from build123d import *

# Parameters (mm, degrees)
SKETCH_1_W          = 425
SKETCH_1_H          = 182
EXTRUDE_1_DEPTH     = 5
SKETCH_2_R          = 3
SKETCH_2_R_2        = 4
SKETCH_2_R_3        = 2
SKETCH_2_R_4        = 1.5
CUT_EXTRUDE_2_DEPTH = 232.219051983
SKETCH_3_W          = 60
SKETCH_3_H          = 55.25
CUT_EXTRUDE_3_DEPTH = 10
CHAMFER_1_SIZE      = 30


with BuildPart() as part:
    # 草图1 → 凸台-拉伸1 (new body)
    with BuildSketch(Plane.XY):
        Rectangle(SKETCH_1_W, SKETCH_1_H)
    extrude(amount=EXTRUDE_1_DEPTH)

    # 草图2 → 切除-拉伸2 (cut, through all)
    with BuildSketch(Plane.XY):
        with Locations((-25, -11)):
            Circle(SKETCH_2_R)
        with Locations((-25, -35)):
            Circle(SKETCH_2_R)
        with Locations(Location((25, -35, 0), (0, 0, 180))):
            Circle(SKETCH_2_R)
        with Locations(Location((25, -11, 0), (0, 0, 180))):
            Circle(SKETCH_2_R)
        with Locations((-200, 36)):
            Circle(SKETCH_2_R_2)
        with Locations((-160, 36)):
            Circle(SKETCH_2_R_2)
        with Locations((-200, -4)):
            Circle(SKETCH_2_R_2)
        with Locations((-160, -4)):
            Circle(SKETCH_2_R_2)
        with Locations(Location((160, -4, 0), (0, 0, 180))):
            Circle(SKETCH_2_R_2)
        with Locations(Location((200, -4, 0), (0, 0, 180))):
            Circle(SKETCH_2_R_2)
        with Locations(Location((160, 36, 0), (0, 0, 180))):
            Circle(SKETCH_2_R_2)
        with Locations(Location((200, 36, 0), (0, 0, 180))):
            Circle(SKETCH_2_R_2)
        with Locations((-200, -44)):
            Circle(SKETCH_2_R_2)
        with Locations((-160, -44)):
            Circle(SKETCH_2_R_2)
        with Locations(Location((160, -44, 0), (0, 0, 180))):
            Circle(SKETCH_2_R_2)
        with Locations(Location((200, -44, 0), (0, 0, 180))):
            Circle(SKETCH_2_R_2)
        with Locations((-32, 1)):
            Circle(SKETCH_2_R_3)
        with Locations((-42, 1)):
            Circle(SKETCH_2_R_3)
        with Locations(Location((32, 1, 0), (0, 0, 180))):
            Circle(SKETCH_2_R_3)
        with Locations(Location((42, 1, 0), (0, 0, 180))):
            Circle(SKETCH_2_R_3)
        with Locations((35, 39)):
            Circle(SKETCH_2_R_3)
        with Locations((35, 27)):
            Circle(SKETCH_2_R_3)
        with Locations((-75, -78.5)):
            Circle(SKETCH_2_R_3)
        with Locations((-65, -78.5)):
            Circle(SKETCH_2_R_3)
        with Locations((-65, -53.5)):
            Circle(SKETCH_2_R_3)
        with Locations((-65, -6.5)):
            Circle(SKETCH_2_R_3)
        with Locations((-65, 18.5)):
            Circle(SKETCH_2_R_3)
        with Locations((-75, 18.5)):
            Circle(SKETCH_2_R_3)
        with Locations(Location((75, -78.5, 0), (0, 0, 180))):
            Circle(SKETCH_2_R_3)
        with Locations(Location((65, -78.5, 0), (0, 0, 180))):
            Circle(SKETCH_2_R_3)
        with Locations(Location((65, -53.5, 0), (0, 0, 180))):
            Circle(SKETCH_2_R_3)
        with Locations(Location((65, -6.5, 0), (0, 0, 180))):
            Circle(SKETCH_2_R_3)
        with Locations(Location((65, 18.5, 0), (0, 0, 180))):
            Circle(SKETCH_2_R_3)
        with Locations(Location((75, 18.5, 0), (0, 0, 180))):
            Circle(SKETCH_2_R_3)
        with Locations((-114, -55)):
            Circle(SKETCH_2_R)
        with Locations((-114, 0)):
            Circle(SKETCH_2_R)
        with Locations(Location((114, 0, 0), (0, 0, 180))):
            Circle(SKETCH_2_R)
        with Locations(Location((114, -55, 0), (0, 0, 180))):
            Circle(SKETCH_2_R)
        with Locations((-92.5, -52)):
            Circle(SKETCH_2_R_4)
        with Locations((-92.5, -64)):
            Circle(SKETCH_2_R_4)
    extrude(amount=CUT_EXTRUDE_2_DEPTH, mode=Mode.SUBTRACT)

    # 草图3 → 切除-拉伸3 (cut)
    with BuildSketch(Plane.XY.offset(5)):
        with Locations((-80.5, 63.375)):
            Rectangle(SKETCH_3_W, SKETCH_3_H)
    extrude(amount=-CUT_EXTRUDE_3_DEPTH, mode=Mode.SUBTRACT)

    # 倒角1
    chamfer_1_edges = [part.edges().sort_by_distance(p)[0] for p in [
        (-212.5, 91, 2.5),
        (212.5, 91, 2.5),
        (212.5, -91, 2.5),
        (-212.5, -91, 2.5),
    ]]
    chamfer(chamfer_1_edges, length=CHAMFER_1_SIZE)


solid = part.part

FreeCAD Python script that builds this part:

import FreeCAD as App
import Part
import Sketcher

V = App.Vector


def edges_at(feature, points):
    """Names of the edges that pass closest to the given points."""
    edges = feature.Shape.Edges
    near = lambda p: min(range(len(edges)), key=lambda i: edges[i].distToShape(Part.Vertex(*p))[0])
    return sorted({f"Edge{near(p) + 1}" for p in points})


def add_polygon(sketch, points):
    """Adds a closed chain of lines whose ends are joined by coincident constraints."""
    first, n = sketch.GeometryCount, len(points)
    for a, b in zip(points, points[1:] + points[:1]):
        sketch.addGeometry(Part.LineSegment(App.Vector(*a, 0), App.Vector(*b, 0)), False)
    for i in range(n):
        sketch.addConstraint(Sketcher.Constraint("Coincident", first + i, 2, first + (i + 1) % n, 1))

doc = App.newDocument("Part")
params = doc.addObject("Spreadsheet::Sheet", "Params")
for row, (alias, value) in enumerate([
    ("sketch1_width", "425 mm"),
    ("sketch1_height", "182 mm"),
    ("pad1_length", "5 mm"),
    ("sketch2_diameter", "6 mm"),
    ("sketch2_diameter2", "8 mm"),
    ("sketch2_diameter3", "4 mm"),
    ("sketch2_diameter4", "3 mm"),
    ("sketch3_width", "60 mm"),
    ("sketch3_height", "55.25 mm"),
    ("pocket2_length", "10 mm"),
    ("chamfer_size", "30 mm"),
], start=1):
    params.set(f"A{row}", alias)
    params.set(f"B{row}", "=" + value)
    params.setAlias(f"B{row}", alias)

body = doc.addObject("PartDesign::Body", "Body")

# Sketch on XY plane
sketch1 = body.newObject("Sketcher::SketchObject", "Sketch")
sketch1.AttachmentSupport = (doc.getObject("XY_Plane"), [""])
sketch1.MapMode = "FlatFace"
add_polygon(sketch1, [(-212.5, 91), (-212.5, -91), (212.5, -91), (212.5, 91)])  # lines 0-3
sketch1.addConstraint([
    Sketcher.Constraint("Vertical", 0),
    Sketcher.Constraint("Horizontal", 1),
    Sketcher.Constraint("Vertical", 2),
    Sketcher.Constraint("Horizontal", 3),
    Sketcher.Constraint("Symmetric", 0, 2, 2, 2, -1, 1),
    Sketcher.Constraint("DistanceX", 1, 1, 1, 2, 425.0),
    Sketcher.Constraint("DistanceY", 0, 2, 0, 1, 182.0),
])
sketch1.setExpression("Constraints[9]", "Params.sketch1_width")
sketch1.setExpression("Constraints[10]", "Params.sketch1_height")
pad1 = body.newObject("PartDesign::Pad", "Pad")
pad1.Profile = sketch1
pad1.setExpression("Length", "Params.pad1_length")

# Sketch on XY plane
sketch2 = body.newObject("Sketcher::SketchObject", "Sketch001")
sketch2.AttachmentSupport = (doc.getObject("XY_Plane"), [""])
sketch2.MapMode = "FlatFace"
sketch2.addGeometry([
    Part.Circle(V(-25, -11, 0), V(0, 0, 1), 3),  # 0
    Part.Circle(V(-25, -35, 0), V(0, 0, 1), 3),  # 1
    Part.Circle(V(25, -35, 0), V(0, 0, 1), 3),  # 2
    Part.Circle(V(25, -11, 0), V(0, 0, 1), 3),  # 3
    Part.Circle(V(-200, 36, 0), V(0, 0, 1), 4),  # 4
    Part.Circle(V(-160, 36, 0), V(0, 0, 1), 4),  # 5
    Part.Circle(V(-200, -4, 0), V(0, 0, 1), 4),  # 6
    Part.Circle(V(-160, -4, 0), V(0, 0, 1), 4),  # 7
    Part.Circle(V(160, -4, 0), V(0, 0, 1), 4),  # 8
    Part.Circle(V(200, -4, 0), V(0, 0, 1), 4),  # 9
    Part.Circle(V(160, 36, 0), V(0, 0, 1), 4),  # 10
    Part.Circle(V(200, 36, 0), V(0, 0, 1), 4),  # 11
    Part.Circle(V(-200, -44, 0), V(0, 0, 1), 4),  # 12
    Part.Circle(V(-160, -44, 0), V(0, 0, 1), 4),  # 13
    Part.Circle(V(160, -44, 0), V(0, 0, 1), 4),  # 14
    Part.Circle(V(200, -44, 0), V(0, 0, 1), 4),  # 15
    Part.Circle(V(-32, 1, 0), V(0, 0, 1), 2),  # 16
    Part.Circle(V(-42, 1, 0), V(0, 0, 1), 2),  # 17
    Part.Circle(V(32, 1, 0), V(0, 0, 1), 2),  # 18
    Part.Circle(V(42, 1, 0), V(0, 0, 1), 2),  # 19
    Part.Circle(V(35, 39, 0), V(0, 0, 1), 2),  # 20
    Part.Circle(V(35, 27, 0), V(0, 0, 1), 2),  # 21
    Part.Circle(V(-75, -78.5, 0), V(0, 0, 1), 2),  # 22
    Part.Circle(V(-65, -78.5, 0), V(0, 0, 1), 2),  # 23
    Part.Circle(V(-65, -53.5, 0), V(0, 0, 1), 2),  # 24
    Part.Circle(V(-65, -6.5, 0), V(0, 0, 1), 2),  # 25
    Part.Circle(V(-65, 18.5, 0), V(0, 0, 1), 2),  # 26
    Part.Circle(V(-75, 18.5, 0), V(0, 0, 1), 2),  # 27
    Part.Circle(V(75, -78.5, 0), V(0, 0, 1), 2),  # 28
    Part.Circle(V(65, -78.5, 0), V(0, 0, 1), 2),  # 29
    Part.Circle(V(65, -53.5, 0), V(0, 0, 1), 2),  # 30
    Part.Circle(V(65, -6.5, 0), V(0, 0, 1), 2),  # 31
    Part.Circle(V(65, 18.5, 0), V(0, 0, 1), 2),  # 32
    Part.Circle(V(75, 18.5, 0), V(0, 0, 1), 2),  # 33
    Part.Circle(V(-114, -55, 0), V(0, 0, 1), 3),  # 34
    Part.Circle(V(-114, 0, 0), V(0, 0, 1), 3),  # 35
    Part.Circle(V(114, 0, 0), V(0, 0, 1), 3),  # 36
    Part.Circle(V(114, -55, 0), V(0, 0, 1), 3),  # 37
    Part.Circle(V(-92.5, -52, 0), V(0, 0, 1), 1.5),  # 38
    Part.Circle(V(-92.5, -64, 0), V(0, 0, 1), 1.5),  # 39
], False)
sketch2.addConstraint([
    Sketcher.Constraint("Equal", 0, 1),
    Sketcher.Constraint("Equal", 1, 2),
    Sketcher.Constraint("Equal", 2, 3),
    Sketcher.Constraint("Equal", 4, 5),
    Sketcher.Constraint("Equal", 5, 6),
    Sketcher.Constraint("Equal", 6, 7),
    Sketcher.Constraint("Equal", 7, 8),
    Sketcher.Constraint("Equal", 8, 9),
    Sketcher.Constraint("Equal", 9, 10),
    Sketcher.Constraint("Equal", 10, 11),
    Sketcher.Constraint("Equal", 11, 12),
    Sketcher.Constraint("Equal", 12, 13),
    Sketcher.Constraint("Equal", 13, 14),
    Sketcher.Constraint("Equal", 14, 15),
    Sketcher.Constraint("Equal", 16, 17),
    Sketcher.Constraint("Equal", 17, 18),
    Sketcher.Constraint("Equal", 18, 19),
    Sketcher.Constraint("Equal", 19, 20),
    Sketcher.Constraint("Equal", 20, 21),
    Sketcher.Constraint("Equal", 21, 22),
    Sketcher.Constraint("Equal", 22, 23),
    Sketcher.Constraint("Equal", 23, 24),
    Sketcher.Constraint("Equal", 24, 25),
    Sketcher.Constraint("Equal", 25, 26),
    Sketcher.Constraint("Equal", 26, 27),
    Sketcher.Constraint("Equal", 27, 28),
    Sketcher.Constraint("Equal", 28, 29),
    Sketcher.Constraint("Equal", 29, 30),
    Sketcher.Constraint("Equal", 30, 31),
    Sketcher.Constraint("Equal", 31, 32),
    Sketcher.Constraint("Equal", 32, 33),
    Sketcher.Constraint("Equal", 3, 34),
    Sketcher.Constraint("Equal", 34, 35),
    Sketcher.Constraint("Equal", 35, 36),
    Sketcher.Constraint("Equal", 36, 37),
    Sketcher.Constraint("Equal", 38, 39),
    Sketcher.Constraint("Symmetric", 35, 3, 36, 3, -1, 1),
    Sketcher.Constraint("Symmetric", 1, 3, 2, 3, -2),
    Sketcher.Constraint("Symmetric", 0, 3, 3, 3, -2),
    Sketcher.Constraint("Symmetric", 7, 3, 8, 3, -2),
    Sketcher.Constraint("Symmetric", 6, 3, 9, 3, -2),
    Sketcher.Constraint("Symmetric", 5, 3, 10, 3, -2),
    Sketcher.Constraint("Symmetric", 4, 3, 11, 3, -2),
    Sketcher.Constraint("Symmetric", 13, 3, 14, 3, -2),
    Sketcher.Constraint("Symmetric", 12, 3, 15, 3, -2),
    Sketcher.Constraint("Symmetric", 16, 3, 18, 3, -2),
    Sketcher.Constraint("Symmetric", 17, 3, 19, 3, -2),
    Sketcher.Constraint("Symmetric", 22, 3, 28, 3, -2),
    Sketcher.Constraint("Symmetric", 23, 3, 29, 3, -2),
    Sketcher.Constraint("Symmetric", 24, 3, 30, 3, -2),
    Sketcher.Constraint("Symmetric", 25, 3, 31, 3, -2),
    Sketcher.Constraint("Symmetric", 26, 3, 32, 3, -2),
    Sketcher.Constraint("Symmetric", 27, 3, 33, 3, -2),
    Sketcher.Constraint("Symmetric", 34, 3, 37, 3, -2),
    Sketcher.Constraint("PointOnObject", 35, 3, -1),
    Sketcher.Constraint("Horizontal", 4, 3, 5, 3),
    Sketcher.Constraint("Horizontal", 6, 3, 7, 3),
    Sketcher.Constraint("Horizontal", 12, 3, 13, 3),
    Sketcher.Constraint("Horizontal", 16, 3, 17, 3),
    Sketcher.Constraint("Horizontal", 22, 3, 23, 3),
    Sketcher.Constraint("Horizontal", 26, 3, 27, 3),
    Sketcher.Constraint("Vertical", 0, 3, 1, 3),
    Sketcher.Constraint("Vertical", 4, 3, 6, 3),
    Sketcher.Constraint("Vertical", 5, 3, 7, 3),
    Sketcher.Constraint("Vertical", 6, 3, 12, 3),
    Sketcher.Constraint("Vertical", 7, 3, 13, 3),
    Sketcher.Constraint("Vertical", 20, 3, 21, 3),
    Sketcher.Constraint("Vertical", 23, 3, 24, 3),
    Sketcher.Constraint("Vertical", 24, 3, 25, 3),
    Sketcher.Constraint("Vertical", 25, 3, 26, 3),
    Sketcher.Constraint("Vertical", 22, 3, 27, 3),
    Sketcher.Constraint("Vertical", 34, 3, 35, 3),
    Sketcher.Constraint("Vertical", 38, 3, 39, 3),
    Sketcher.Constraint("Diameter", 0, 6.0),
    Sketcher.Constraint("Diameter", 4, 8.0),
    Sketcher.Constraint("Diameter", 16, 4.0),
    Sketcher.Constraint("Diameter", 38, 3.0),
    Sketcher.Constraint("DistanceX", 0, 3, -1, 1, 25.0),
    Sketcher.Constraint("DistanceY", 0, 3, -1, 1, 11.0),
    Sketcher.Constraint("DistanceY", 1, 3, -1, 1, 35.0),
    Sketcher.Constraint("DistanceX", 4, 3, -1, 1, 200.0),
    Sketcher.Constraint("DistanceY", -1, 1, 4, 3, 36.0),
    Sketcher.Constraint("DistanceX", 5, 3, -1, 1, 160.0),
    Sketcher.Constraint("DistanceY", 6, 3, -1, 1, 4.0),
    Sketcher.Constraint("DistanceY", 12, 3, -1, 1, 44.0),
    Sketcher.Constraint("DistanceX", 16, 3, -1, 1, 32.0),
    Sketcher.Constraint("DistanceY", -1, 1, 16, 3, 1.0),
    Sketcher.Constraint("DistanceX", 17, 3, -1, 1, 42.0),
    Sketcher.Constraint("DistanceX", -1, 1, 20, 3, 35.0),
    Sketcher.Constraint("DistanceY", -1, 1, 20, 3, 39.0),
    Sketcher.Constraint("DistanceY", -1, 1, 21, 3, 27.0),
    Sketcher.Constraint("DistanceX", 22, 3, -1, 1, 75.0),
    Sketcher.Constraint("DistanceX", 23, 3, -1, 1, 65.0),
    Sketcher.Constraint("DistanceX", 34, 3, -1, 1, 114.0),
    Sketcher.Constraint("DistanceY", 34, 3, -1, 1, 55.0),
    Sketcher.Constraint("DistanceY", 38, 3, -1, 1, 52.0),
    Sketcher.Constraint("DistanceY", 39, 3, -1, 1, 64.0),
    Sketcher.Constraint("DistanceY", 23, 3, 24, 3, 25.0),
    Sketcher.Constraint("DistanceY", 24, 3, 25, 3, 47.0),
    Sketcher.Constraint("DistanceY", 25, 3, 26, 3, 25.0),
    Sketcher.Constraint("DistanceY", 22, 3, -1, 1, 78.5),
    Sketcher.Constraint("DistanceX", 38, 3, -1, 1, 92.5),
])
sketch2.setExpression("Constraints[73]", "Params.sketch2_diameter")
sketch2.setExpression("Constraints[74]", "Params.sketch2_diameter2")
sketch2.setExpression("Constraints[75]", "Params.sketch2_diameter3")
sketch2.setExpression("Constraints[76]", "Params.sketch2_diameter4")
pocket1 = body.newObject("PartDesign::Pocket", "Pocket")
pocket1.Profile = sketch2
pocket1.Type = "ThroughAll"
pocket1.Reversed = True

# Sketch on XY plane
sketch3 = body.newObject("Sketcher::SketchObject", "Sketch002")
sketch3.AttachmentSupport = (doc.getObject("XY_Plane"), [""])
sketch3.MapMode = "FlatFace"
sketch3.AttachmentOffset = App.Placement(V(0, 0, 5), App.Rotation())
add_polygon(sketch3, [(-110.5, 91), (-110.5, 35.75), (-50.5, 35.75), (-50.5, 91)])  # lines 0-3
sketch3.addConstraint([
    Sketcher.Constraint("Vertical", 0),
    Sketcher.Constraint("Horizontal", 1),
    Sketcher.Constraint("Vertical", 2),
    Sketcher.Constraint("Horizontal", 3),
    Sketcher.Constraint("DistanceX", 1, 1, 1, 2, 60.0),
    Sketcher.Constraint("DistanceY", -1, 1, 2, 2, 91.0),
    Sketcher.Constraint("DistanceY", 0, 2, 0, 1, 55.25),
    Sketcher.Constraint("DistanceX", 0, 2, -1, 1, 110.5),
])
sketch3.setExpression("Constraints[8]", "Params.sketch3_width")
sketch3.setExpression("Constraints[10]", "Params.sketch3_height")
pocket2 = body.newObject("PartDesign::Pocket", "Pocket001")
pocket2.Profile = sketch3
pocket2.setExpression("Length", "Params.pocket2_length")
doc.recompute()

chamfer = body.newObject("PartDesign::Chamfer", "Chamfer")
chamfer.Base = (pocket2, edges_at(pocket2, [
    (-212.5, 91, 2.5),
    (212.5, 91, 2.5),
    (212.5, -91, 2.5),
    (-212.5, -91, 2.5),
]))
chamfer.setExpression("Size", "Params.chamfer_size")

doc.recompute()
